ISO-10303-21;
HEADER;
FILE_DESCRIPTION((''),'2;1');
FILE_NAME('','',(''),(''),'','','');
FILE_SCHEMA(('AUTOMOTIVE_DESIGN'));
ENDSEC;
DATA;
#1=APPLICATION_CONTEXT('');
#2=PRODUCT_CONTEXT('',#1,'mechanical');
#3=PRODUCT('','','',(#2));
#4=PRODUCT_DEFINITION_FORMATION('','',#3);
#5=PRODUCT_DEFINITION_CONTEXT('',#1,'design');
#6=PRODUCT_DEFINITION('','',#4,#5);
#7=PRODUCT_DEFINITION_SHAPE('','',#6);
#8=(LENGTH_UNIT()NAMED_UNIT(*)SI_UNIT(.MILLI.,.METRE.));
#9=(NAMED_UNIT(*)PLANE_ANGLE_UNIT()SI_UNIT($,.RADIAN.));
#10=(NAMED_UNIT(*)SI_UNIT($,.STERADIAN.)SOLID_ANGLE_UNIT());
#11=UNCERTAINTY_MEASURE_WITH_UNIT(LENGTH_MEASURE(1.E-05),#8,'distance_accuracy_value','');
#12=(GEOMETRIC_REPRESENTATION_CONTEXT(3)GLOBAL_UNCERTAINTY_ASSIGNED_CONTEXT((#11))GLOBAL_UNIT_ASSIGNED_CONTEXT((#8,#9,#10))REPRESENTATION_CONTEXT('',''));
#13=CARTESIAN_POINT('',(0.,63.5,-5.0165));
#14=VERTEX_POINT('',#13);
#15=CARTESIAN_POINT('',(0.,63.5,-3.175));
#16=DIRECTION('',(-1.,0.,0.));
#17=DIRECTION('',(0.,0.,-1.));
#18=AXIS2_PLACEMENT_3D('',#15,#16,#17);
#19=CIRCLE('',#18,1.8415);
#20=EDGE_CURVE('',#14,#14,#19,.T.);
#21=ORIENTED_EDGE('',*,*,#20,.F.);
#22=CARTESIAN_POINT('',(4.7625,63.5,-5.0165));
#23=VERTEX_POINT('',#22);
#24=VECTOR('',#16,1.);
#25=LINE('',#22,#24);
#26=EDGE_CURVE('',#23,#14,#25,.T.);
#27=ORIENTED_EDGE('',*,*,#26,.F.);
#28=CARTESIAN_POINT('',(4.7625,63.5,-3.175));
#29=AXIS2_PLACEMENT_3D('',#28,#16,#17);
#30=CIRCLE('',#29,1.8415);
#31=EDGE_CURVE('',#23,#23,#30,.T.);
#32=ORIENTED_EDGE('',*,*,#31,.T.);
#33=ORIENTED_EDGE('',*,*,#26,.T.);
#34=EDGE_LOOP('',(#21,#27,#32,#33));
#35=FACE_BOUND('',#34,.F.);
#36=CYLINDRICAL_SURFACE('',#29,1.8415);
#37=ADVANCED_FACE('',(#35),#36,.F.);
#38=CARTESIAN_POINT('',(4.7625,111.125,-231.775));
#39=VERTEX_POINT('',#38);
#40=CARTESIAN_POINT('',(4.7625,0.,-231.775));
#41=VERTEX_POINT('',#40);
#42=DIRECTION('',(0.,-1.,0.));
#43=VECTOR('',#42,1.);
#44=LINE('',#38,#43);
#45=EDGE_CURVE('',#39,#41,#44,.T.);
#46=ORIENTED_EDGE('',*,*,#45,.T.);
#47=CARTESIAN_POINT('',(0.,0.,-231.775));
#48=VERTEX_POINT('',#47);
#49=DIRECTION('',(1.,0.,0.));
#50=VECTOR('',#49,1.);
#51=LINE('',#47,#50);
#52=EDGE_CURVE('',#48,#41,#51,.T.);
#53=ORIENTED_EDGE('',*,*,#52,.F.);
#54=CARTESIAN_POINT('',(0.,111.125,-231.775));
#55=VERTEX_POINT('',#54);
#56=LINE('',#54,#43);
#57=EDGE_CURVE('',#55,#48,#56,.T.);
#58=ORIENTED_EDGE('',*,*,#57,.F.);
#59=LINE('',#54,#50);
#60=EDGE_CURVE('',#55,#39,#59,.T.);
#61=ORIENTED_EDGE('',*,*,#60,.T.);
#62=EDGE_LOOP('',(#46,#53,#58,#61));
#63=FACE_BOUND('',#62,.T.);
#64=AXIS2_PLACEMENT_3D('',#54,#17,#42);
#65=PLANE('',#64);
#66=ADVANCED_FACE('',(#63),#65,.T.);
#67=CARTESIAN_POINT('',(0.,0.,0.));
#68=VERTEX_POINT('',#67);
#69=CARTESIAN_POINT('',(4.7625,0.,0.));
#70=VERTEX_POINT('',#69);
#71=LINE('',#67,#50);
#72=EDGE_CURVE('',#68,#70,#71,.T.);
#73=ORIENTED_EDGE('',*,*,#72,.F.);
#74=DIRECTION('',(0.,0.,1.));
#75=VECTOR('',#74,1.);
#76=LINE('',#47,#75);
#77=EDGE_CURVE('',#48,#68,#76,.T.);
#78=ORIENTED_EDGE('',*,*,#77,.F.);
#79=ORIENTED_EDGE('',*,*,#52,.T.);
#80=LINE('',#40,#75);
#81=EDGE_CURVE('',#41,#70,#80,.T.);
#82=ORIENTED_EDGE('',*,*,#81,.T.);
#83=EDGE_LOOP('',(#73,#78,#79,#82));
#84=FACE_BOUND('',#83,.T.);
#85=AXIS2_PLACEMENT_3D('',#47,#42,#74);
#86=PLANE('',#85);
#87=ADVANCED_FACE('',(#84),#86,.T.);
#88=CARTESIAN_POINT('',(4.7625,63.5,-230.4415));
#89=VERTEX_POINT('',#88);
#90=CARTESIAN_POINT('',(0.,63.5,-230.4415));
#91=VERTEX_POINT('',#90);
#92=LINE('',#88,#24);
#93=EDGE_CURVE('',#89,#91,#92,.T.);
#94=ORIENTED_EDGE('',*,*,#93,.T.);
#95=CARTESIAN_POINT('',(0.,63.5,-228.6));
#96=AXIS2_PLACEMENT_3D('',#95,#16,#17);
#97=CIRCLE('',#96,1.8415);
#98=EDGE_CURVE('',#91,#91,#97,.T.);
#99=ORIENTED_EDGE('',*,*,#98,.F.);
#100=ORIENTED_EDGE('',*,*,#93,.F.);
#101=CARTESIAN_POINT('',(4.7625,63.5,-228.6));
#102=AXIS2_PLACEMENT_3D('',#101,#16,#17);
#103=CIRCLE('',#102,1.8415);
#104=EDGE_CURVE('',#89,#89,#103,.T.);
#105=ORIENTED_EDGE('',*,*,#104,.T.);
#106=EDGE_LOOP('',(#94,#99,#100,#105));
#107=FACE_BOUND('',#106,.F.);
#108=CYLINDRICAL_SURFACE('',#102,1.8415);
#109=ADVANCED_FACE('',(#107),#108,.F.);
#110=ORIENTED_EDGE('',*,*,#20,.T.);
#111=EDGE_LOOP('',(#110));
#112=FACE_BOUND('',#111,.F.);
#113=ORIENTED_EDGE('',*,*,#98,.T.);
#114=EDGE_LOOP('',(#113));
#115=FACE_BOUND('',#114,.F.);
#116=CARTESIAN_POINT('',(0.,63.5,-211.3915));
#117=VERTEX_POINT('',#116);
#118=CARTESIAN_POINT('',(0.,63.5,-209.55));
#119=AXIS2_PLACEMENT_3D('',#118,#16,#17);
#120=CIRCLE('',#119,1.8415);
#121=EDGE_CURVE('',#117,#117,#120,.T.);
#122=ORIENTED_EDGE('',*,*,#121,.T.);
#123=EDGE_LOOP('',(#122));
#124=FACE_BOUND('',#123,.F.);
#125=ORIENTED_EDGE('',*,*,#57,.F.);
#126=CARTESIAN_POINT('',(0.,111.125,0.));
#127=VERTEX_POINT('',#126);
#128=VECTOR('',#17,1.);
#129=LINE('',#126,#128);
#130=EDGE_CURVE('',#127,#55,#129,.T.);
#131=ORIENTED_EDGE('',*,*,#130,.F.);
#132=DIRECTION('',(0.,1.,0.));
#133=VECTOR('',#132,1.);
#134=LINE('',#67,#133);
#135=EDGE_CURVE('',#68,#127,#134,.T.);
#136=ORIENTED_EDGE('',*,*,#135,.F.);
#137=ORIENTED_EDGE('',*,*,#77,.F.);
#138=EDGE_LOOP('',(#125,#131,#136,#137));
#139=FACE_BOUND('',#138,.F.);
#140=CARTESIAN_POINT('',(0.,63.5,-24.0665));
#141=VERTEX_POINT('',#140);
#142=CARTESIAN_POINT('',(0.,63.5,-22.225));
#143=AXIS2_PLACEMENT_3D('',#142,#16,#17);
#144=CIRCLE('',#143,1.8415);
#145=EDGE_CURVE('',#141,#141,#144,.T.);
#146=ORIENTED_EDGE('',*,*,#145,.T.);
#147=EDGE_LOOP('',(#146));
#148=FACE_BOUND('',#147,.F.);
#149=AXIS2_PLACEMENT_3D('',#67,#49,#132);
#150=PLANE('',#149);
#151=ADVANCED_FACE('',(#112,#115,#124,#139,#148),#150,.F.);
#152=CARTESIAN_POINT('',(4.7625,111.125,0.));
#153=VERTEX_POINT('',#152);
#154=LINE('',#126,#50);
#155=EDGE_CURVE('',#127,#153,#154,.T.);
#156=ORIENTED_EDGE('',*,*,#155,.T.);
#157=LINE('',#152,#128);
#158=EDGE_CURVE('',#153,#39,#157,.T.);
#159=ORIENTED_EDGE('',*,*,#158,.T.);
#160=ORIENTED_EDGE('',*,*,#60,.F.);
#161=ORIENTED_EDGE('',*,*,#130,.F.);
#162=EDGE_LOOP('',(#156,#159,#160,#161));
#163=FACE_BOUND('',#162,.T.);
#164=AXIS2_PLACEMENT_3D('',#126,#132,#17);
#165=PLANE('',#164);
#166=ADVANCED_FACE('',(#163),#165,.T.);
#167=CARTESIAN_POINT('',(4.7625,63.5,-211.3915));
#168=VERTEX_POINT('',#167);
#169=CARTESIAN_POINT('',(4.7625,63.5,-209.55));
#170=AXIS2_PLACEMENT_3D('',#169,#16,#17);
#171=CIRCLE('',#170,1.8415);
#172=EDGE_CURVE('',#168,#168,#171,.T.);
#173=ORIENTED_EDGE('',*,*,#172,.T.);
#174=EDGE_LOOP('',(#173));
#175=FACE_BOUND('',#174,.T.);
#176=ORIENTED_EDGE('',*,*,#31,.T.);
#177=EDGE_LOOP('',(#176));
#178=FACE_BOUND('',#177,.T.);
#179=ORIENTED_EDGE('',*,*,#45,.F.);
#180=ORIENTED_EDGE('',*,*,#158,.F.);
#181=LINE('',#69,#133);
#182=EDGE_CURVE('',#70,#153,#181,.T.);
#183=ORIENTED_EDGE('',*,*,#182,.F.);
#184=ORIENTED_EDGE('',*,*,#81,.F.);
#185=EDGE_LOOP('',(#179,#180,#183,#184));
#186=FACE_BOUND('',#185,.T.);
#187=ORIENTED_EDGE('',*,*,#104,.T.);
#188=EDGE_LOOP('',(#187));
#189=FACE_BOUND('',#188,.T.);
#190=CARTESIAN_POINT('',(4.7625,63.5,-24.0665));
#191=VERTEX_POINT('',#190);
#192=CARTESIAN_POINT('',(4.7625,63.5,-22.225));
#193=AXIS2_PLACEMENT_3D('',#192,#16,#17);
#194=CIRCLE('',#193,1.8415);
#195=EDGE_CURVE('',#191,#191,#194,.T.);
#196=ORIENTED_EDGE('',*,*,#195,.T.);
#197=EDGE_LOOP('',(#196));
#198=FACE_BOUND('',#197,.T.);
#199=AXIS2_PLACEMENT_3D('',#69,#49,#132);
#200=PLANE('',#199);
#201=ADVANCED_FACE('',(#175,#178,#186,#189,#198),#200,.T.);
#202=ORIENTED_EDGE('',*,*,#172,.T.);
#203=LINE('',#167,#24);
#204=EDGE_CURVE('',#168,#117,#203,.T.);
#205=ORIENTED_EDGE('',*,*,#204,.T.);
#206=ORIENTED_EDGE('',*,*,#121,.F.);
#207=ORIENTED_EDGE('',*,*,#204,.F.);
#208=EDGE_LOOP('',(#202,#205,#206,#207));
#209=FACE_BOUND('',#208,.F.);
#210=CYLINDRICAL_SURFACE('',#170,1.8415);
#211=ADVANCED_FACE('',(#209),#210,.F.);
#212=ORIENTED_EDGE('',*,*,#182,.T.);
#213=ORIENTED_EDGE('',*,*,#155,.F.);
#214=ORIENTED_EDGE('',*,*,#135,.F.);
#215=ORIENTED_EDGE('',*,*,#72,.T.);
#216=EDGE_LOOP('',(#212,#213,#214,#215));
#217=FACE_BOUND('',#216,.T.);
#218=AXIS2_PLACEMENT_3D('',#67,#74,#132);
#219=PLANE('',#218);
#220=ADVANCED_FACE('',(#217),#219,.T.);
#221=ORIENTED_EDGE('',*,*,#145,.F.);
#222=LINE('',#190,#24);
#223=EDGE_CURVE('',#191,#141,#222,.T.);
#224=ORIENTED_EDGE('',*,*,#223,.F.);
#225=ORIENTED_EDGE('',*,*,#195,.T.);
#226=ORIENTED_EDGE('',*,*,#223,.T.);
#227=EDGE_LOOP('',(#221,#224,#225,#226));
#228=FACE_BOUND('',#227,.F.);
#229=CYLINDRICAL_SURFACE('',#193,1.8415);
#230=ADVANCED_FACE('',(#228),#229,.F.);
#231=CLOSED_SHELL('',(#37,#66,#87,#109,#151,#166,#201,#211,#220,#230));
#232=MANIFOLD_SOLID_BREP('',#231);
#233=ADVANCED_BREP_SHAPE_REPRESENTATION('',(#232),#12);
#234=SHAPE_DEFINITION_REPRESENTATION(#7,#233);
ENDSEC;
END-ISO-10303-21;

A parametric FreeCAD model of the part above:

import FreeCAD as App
import Part
import Sketcher

V = App.Vector
Q = App.Units.Quantity


def add_polygon(sketch, points):
    """Adds a closed chain of lines whose ends are joined by coincident constraints."""
    first, n = sketch.GeometryCount, len(points)
    for a, b in zip(points, points[1:] + points[:1]):
        sketch.addGeometry(Part.LineSegment(App.Vector(*a, 0), App.Vector(*b, 0)), False)
    for i in range(n):
        sketch.addConstraint(Sketcher.Constraint("Coincident", first + i, 2, first + (i + 1) % n, 1))

doc = App.newDocument("Part")
body = doc.addObject("PartDesign::Body", "Body")

sketch1 = body.newObject("Sketcher::SketchObject", "Sketch")
sketch1.AttachmentSupport = (doc.getObject("YZ_Plane"), [""])
sketch1.MapMode = "FlatFace"
add_polygon(sketch1, [(111, 0), (0, 0), (0, -232), (111, -232)])
sketch1.addConstraint(Sketcher.Constraint("Horizontal", 0))
sketch1.addConstraint(Sketcher.Constraint("Vertical", 1))
sketch1.addConstraint(Sketcher.Constraint("Horizontal", 2))
sketch1.addConstraint(Sketcher.Constraint("Vertical", 3))
sketch1.addConstraint(Sketcher.Constraint("Coincident", 0, 2, -1, 1))
sketch1.addConstraint(Sketcher.Constraint("DistanceX", 0, 2, 0, 1, Q("4.375 in")))
sketch1.addConstraint(Sketcher.Constraint("DistanceY", 1, 2, 1, 1, Q("9.125 in")))
pad1 = body.newObject("PartDesign::Pad", "Pad")
pad1.Profile = sketch1
pad1.Length = Q("0.1875 in")

sketch2 = body.newObject("Sketcher::SketchObject", "Sketch001")
sketch2.AttachmentSupport = (doc.getObject("YZ_Plane"), [""])
sketch2.MapMode = "FlatFace"
sketch2.AttachmentOffset = App.Placement(V(0, 0, 0.1875 * 25.4), App.Rotation())
sketch2.addGeometry(Part.Circle(V(63.5, -3.2, 0), V(0, 0, 1), 1.8), False)
sketch2.addGeometry(Part.Circle(V(63.5, -22.2, 0), V(0, 0, 1), 1.8), False)
sketch2.addGeometry(Part.Circle(V(63.5, -209.6, 0), V(0, 0, 1), 1.8), False)
sketch2.addGeometry(Part.Circle(V(63.5, -228.6, 0), V(0, 0, 1), 1.8), False)
sketch2.addConstraint(Sketcher.Constraint("Equal", 0, 1))
sketch2.addConstraint(Sketcher.Constraint("Equal", 1, 2))
sketch2.addConstraint(Sketcher.Constraint("Equal", 2, 3))
sketch2.addConstraint(Sketcher.Constraint("Vertical", 0, 3, 1, 3))
sketch2.addConstraint(Sketcher.Constraint("Vertical", 1, 3, 2, 3))
sketch2.addConstraint(Sketcher.Constraint("Vertical", 2, 3, 3, 3))
sketch2.addConstraint(Sketcher.Constraint("Diameter", 0, Q("0.145 in")))
sketch2.addConstraint(Sketcher.Constraint("DistanceY", 3, 3, -1, 1, Q("9 in")))
sketch2.addConstraint(Sketcher.Constraint("DistanceX", -1, 1, 0, 3, Q("2.5 in")))
sketch2.addConstraint(Sketcher.Constraint("DistanceY", 2, 3, -1, 1, Q("8.25 in")))
sketch2.addConstraint(Sketcher.Constraint("DistanceY", 1, 3, 0, 3, Q("0.75 in")))
sketch2.addConstraint(Sketcher.Constraint("DistanceY", 0, 3, -1, 1, Q("0.125 in")))
doc.recompute()
hole = body.newObject("PartDesign::Hole", "Hole")
hole.Profile = sketch2
hole.ThreadType = "None"
hole.Diameter = Q("0.145 in")
hole.DepthType = "Dimension"
hole.Depth = Q("1 in")
hole.DrillPoint = "Angled"
hole.DrillPointAngle = 118

doc.recompute()
